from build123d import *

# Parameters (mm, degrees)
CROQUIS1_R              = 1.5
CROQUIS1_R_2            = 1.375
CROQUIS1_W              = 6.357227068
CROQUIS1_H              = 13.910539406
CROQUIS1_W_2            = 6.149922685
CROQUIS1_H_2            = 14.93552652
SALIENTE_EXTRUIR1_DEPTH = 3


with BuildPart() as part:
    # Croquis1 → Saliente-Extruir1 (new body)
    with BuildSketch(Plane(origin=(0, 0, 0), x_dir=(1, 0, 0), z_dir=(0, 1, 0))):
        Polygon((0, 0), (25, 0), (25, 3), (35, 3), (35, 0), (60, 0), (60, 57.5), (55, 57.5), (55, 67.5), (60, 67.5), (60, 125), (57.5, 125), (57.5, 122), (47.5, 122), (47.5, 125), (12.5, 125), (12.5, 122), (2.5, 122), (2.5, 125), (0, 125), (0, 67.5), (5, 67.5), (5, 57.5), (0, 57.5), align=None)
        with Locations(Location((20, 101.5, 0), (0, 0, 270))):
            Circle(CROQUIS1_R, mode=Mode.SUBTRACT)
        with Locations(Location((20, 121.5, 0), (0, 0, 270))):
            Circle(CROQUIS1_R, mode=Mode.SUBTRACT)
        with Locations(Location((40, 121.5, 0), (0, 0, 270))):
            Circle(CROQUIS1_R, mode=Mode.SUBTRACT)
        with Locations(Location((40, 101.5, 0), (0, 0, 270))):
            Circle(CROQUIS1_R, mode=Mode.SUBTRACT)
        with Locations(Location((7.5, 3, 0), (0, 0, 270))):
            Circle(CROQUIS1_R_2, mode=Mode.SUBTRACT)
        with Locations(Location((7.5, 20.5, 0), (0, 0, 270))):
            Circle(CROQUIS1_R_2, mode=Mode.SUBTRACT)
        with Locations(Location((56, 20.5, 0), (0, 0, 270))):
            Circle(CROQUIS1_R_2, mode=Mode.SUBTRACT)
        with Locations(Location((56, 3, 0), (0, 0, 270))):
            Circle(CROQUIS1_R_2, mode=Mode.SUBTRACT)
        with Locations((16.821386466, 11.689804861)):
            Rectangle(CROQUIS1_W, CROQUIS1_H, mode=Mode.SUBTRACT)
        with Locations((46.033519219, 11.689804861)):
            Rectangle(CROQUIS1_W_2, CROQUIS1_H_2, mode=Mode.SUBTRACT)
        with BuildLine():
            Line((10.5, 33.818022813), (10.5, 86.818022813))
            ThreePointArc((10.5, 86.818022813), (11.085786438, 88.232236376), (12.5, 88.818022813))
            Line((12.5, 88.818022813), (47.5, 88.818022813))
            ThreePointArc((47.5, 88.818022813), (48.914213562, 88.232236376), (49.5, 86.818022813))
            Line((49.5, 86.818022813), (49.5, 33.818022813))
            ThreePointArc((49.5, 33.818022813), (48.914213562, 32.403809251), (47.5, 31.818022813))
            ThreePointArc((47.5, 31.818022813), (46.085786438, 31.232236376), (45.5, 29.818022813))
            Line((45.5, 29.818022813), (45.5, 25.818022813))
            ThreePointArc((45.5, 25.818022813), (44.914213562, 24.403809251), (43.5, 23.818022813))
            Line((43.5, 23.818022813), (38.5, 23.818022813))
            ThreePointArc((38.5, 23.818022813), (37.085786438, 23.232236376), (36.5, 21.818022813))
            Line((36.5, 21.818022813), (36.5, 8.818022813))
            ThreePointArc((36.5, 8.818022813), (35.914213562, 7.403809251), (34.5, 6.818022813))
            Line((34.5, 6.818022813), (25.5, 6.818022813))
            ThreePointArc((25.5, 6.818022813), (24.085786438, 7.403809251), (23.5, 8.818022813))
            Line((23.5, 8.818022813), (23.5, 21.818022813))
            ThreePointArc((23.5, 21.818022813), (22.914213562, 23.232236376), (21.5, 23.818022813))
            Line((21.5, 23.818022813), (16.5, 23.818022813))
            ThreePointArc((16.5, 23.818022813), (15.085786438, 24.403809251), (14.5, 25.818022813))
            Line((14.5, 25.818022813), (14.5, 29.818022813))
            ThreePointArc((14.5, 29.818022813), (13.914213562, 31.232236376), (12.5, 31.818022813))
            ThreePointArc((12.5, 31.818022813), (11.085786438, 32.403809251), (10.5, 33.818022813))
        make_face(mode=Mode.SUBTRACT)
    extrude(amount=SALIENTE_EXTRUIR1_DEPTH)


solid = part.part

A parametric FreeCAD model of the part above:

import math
import FreeCAD as App
import Part
import Sketcher
from FreeCAD import Vector
Q = App.Units.Quantity


def add_polygon(sketch, points):
    """Adds a closed chain of lines whose ends are joined by coincident constraints."""
    first, n = sketch.GeometryCount, len(points)
    for a, b in zip(points, points[1:] + points[:1]):
        sketch.addGeometry(Part.LineSegment(App.Vector(*a, 0), App.Vector(*b, 0)), False)
    for i in range(n):
        sketch.addConstraint(Sketcher.Constraint("Coincident", first + i, 2, first + (i + 1) % n, 1))

doc = App.newDocument("Part")
params = doc.addObject("Spreadsheet::Sheet", "Params")
for row, (alias, value) in enumerate([
    ("sketch1_diameter", "3 mm"),
    ("sketch1_radius", "2 mm"),
    ("sketch1_diameter2", "2.75 mm"),
    ("sketch1_width", "25 mm"),
    ("sketch1_width2", "10 mm"),
    ("pad1_length", "3 mm"),
], start=1):
    params.set(f"A{row}", alias)
    params.set(f"B{row}", "=" + value)
    params.setAlias(f"B{row}", alias)

body = doc.addObject("PartDesign::Body", "Body")

# Sketch on XZ plane
sketch1 = doc.addObject("Sketcher::SketchObject", "Sketch")
body.addObject(sketch1)
sketch1.AttachmentSupport = (doc.XZ_Plane, [""])
sketch1.MapMode = "FlatFace"
add_polygon(sketch1, [(0, 0), (25, 0), (25, -3), (35, -3), (35, 0), (60, 0), (60, -57.5), (55, -57.5), (55, -67.5), (60, -67.5), (60, -125), (57.5, -125), (57.5, -122), (47.5, -122), (47.5, -125), (12.5, -125), (12.5, -122), (2.5, -122), (2.5, -125), (0, -125), (0, -67.5), (5, -67.5), (5, -57.5), (0, -57.5)])  # lines 0-23
sketch1.addGeometry(Part.Circle(Vector(7.5, -3, 0), Vector(0, 0, 1), 1.4), False)  # 24
add_polygon(sketch1, [(20, -4.7), (13.6, -4.7), (13.6, -18.6), (20, -18.6)])  # lines 25-28
sketch1.addGeometry(Part.Circle(Vector(7.5, -20.5, 0), Vector(0, 0, 1), 1.4), False)  # 29
sketch1.addGeometry(Part.ArcOfCircle(Part.Circle(Vector(12.5, -33.8, 0), Vector(0, 0, 1), 2), math.radians(90), math.radians(180)), False)  # 30
sketch1.addGeometry(Part.LineSegment(Vector(10.5, -33.8, 0), Vector(10.5, -86.8, 0)), False)  # 31
sketch1.addGeometry(Part.ArcOfCircle(Part.Circle(Vector(12.5, -86.8, 0), Vector(0, 0, 1), 2), math.radians(180), math.radians(270)), False)  # 32
sketch1.addGeometry(Part.LineSegment(Vector(12.5, -88.8, 0), Vector(47.5, -88.8, 0)), False)  # 33
sketch1.addGeometry(Part.ArcOfCircle(Part.Circle(Vector(47.5, -86.8, 0), Vector(0, 0, 1), 2), math.radians(-90), math.radians(0)), False)  # 34
sketch1.addGeometry(Part.LineSegment(Vector(49.5, -86.8, 0), Vector(49.5, -33.8, 0)), False)  # 35
sketch1.addGeometry(Part.ArcOfCircle(Part.Circle(Vector(47.5, -33.8, 0), Vector(0, 0, 1), 2), math.radians(0), math.radians(90)), False)  # 36
sketch1.addGeometry(Part.ArcOfCircle(Part.Circle(Vector(47.5, -29.8, 0), Vector(0, 0, 1), 2), math.radians(180), math.radians(270)), False)  # 37
sketch1.addGeometry(Part.LineSegment(Vector(45.5, -29.8, 0), Vector(45.5, -25.8, 0)), False)  # 38
sketch1.addGeometry(Part.ArcOfCircle(Part.Circle(Vector(43.5, -25.8, 0), Vector(0, 0, 1), 2), math.radians(0), math.radians(90)), False)  # 39
sketch1.addGeometry(Part.LineSegment(Vector(43.5, -23.8, 0), Vector(38.5, -23.8, 0)), False)  # 40
sketch1.addGeometry(Part.ArcOfCircle(Part.Circle(Vector(38.5, -21.8, 0), Vector(0, 0, 1), 2), math.radians(180), math.radians(270)), False)  # 41
sketch1.addGeometry(Part.LineSegment(Vector(36.5, -21.8, 0), Vector(36.5, -8.8, 0)), False)  # 42
sketch1.addGeometry(Part.ArcOfCircle(Part.Circle(Vector(34.5, -8.8, 0), Vector(0, 0, 1), 2), math.radians(0), math.radians(90)), False)  # 43
sketch1.addGeometry(Part.LineSegment(Vector(34.5, -6.8, 0), Vector(25.5, -6.8, 0)), False)  # 44
sketch1.addGeometry(Part.ArcOfCircle(Part.Circle(Vector(25.5, -8.8, 0), Vector(0, 0, 1), 2), math.radians(90), math.radians(180)), False)  # 45
sketch1.addGeometry(Part.LineSegment(Vector(23.5, -8.8, 0), Vector(23.5, -21.8, 0)), False)  # 46
sketch1.addGeometry(Part.ArcOfCircle(Part.Circle(Vector(21.5, -21.8, 0), Vector(0, 0, 1), 2), math.radians(-90), math.radians(0)), False)  # 47
sketch1.addGeometry(Part.LineSegment(Vector(21.5, -23.8, 0), Vector(16.5, -23.8, 0)), False)  # 48
sketch1.addGeometry(Part.ArcOfCircle(Part.Circle(Vector(16.5, -25.8, 0), Vector(0, 0, 1), 2), math.radians(90), math.radians(180)), False)  # 49
sketch1.addGeometry(Part.LineSegment(Vector(14.5, -25.8, 0), Vector(14.5, -29.8, 0)), False)  # 50
sketch1.addGeometry(Part.ArcOfCircle(Part.Circle(Vector(12.5, -29.8, 0), Vector(0, 0, 1), 2), math.radians(-90), math.radians(0)), False)  # 51
add_polygon(sketch1, [(49.1, -4.2), (43, -4.2), (43, -19.2), (49.1, -19.2)])  # lines 52-55
sketch1.addGeometry(Part.Circle(Vector(56, -3, 0), Vector(0, 0, 1), 1.4), False)  # 56
sketch1.addGeometry(Part.Circle(Vector(56, -20.5, 0), Vector(0, 0, 1), 1.4), False)  # 57
sketch1.addGeometry(Part.Circle(Vector(20, -101.5, 0), Vector(0, 0, 1), 1.5), False)  # 58
sketch1.addGeometry(Part.Circle(Vector(20, -121.5, 0), Vector(0, 0, 1), 1.5), False)  # 59
sketch1.addGeometry(Part.Circle(Vector(40, -101.5, 0), Vector(0, 0, 1), 1.5), False)  # 60
sketch1.addGeometry(Part.Circle(Vector(40, -121.5, 0), Vector(0, 0, 1), 1.5), False)  # 61
sketch1.addConstraint([
    Sketcher.Constraint("Tangent", 30, 2, 31, 1),
    Sketcher.Constraint("Tangent", 31, 2, 32, 1),
    Sketcher.Constraint("Tangent", 32, 2, 33, 1),
    Sketcher.Constraint("Tangent", 33, 2, 34, 1),
    Sketcher.Constraint("Tangent", 34, 2, 35, 1),
    Sketcher.Constraint("Tangent", 35, 2, 36, 1),
    Sketcher.Constraint("Tangent", 36, 2, 37, 2),
    Sketcher.Constraint("Tangent", 37, 1, 38, 1),
    Sketcher.Constraint("Tangent", 38, 2, 39, 1),
    Sketcher.Constraint("Tangent", 39, 2, 40, 1),
    Sketcher.Constraint("Tangent", 40, 2, 41, 2),
    Sketcher.Constraint("Tangent", 41, 1, 42, 1),
    Sketcher.Constraint("Tangent", 42, 2, 43, 1),
    Sketcher.Constraint("Tangent", 43, 2, 44, 1),
    Sketcher.Constraint("Tangent", 44, 2, 45, 1),
    Sketcher.Constraint("Tangent", 45, 2, 46, 1),
    Sketcher.Constraint("Tangent", 46, 2, 47, 2),
    Sketcher.Constraint("Tangent", 47, 1, 48, 1),
    Sketcher.Constraint("Tangent", 48, 2, 49, 1),
    Sketcher.Constraint("Tangent", 49, 2, 50, 1),
    Sketcher.Constraint("Tangent", 50, 2, 51, 2),
    Sketcher.Constraint("Tangent", 51, 1, 30, 1),
    Sketcher.Constraint("Horizontal", 0),
    Sketcher.Constraint("Vertical", 1),
    Sketcher.Constraint("Horizontal", 2),
    Sketcher.Constraint("Vertical", 3),
    Sketcher.Constraint("Horizontal", 4),
    Sketcher.Constraint("Vertical", 5),
    Sketcher.Constraint("Horizontal", 6),
    Sketcher.Constraint("Vertical", 7),
    Sketcher.Constraint("Horizontal", 8),
    Sketcher.Constraint("Vertical", 9),
    Sketcher.Constraint("Horizontal", 10),
    Sketcher.Constraint("Vertical", 11),
    Sketcher.Constraint("Horizontal", 12),
    Sketcher.Constraint("Vertical", 13),
    Sketcher.Constraint("Horizontal", 14),
    Sketcher.Constraint("Vertical", 15),
    Sketcher.Constraint("Horizontal", 16),
    Sketcher.Constraint("Vertical", 17),
    Sketcher.Constraint("Horizontal", 18),
    Sketcher.Constraint("Vertical", 19),
    Sketcher.Constraint("Horizontal", 20),
    Sketcher.Constraint("Vertical", 21),
    Sketcher.Constraint("Horizontal", 22),
    Sketcher.Constraint("Vertical", 23),
    Sketcher.Constraint("Horizontal", 25),
    Sketcher.Constraint("Vertical", 26),
    Sketcher.Constraint("Horizontal", 27),
    Sketcher.Constraint("Vertical", 28),
    Sketcher.Constraint("Vertical", 31),
    Sketcher.Constraint("Horizontal", 33),
    Sketcher.Constraint("Vertical", 35),
    Sketcher.Constraint("Vertical", 38),
    Sketcher.Constraint("Horizontal", 40),
    Sketcher.Constraint("Vertical", 42),
    Sketcher.Constraint("Horizontal", 44),
    Sketcher.Constraint("Vertical", 46),
    Sketcher.Constraint("Horizontal", 48),
    Sketcher.Constraint("Vertical", 50),
    Sketcher.Constraint("Horizontal", 52),
    Sketcher.Constraint("Vertical", 53),
    Sketcher.Constraint("Horizontal", 54),
    Sketcher.Constraint("Vertical", 55),
    Sketcher.Constraint("Coincident", 23, 2, -1, 1),
    Sketcher.Constraint("Equal", 24, 29),
    Sketcher.Constraint("Equal", 30, 32),
    Sketcher.Constraint("Equal", 32, 34),
    Sketcher.Constraint("Equal", 34, 36),
    Sketcher.Constraint("Equal", 36, 37),
    Sketcher.Constraint("Equal", 37, 39),
    Sketcher.Constraint("Equal", 39, 41),
    Sketcher.Constraint("Equal", 41, 43),
    Sketcher.Constraint("Equal", 43, 45),
    Sketcher.Constraint("Equal", 45, 47),
    Sketcher.Constraint("Equal", 47, 49),
    Sketcher.Constraint("Equal", 49, 51),
    Sketcher.Constraint("Equal", 29, 56),
    Sketcher.Constraint("Equal", 56, 57),
    Sketcher.Constraint("Equal", 58, 59),
    Sketcher.Constraint("Equal", 59, 60),
    Sketcher.Constraint("Equal", 60, 61),
    Sketcher.Constraint("PointOnObject", 3, 2, -1),
    Sketcher.Constraint("PointOnObject", 18, 2, -2),
    Sketcher.Constraint("Horizontal", 30, 3, 36, 3),
    Sketcher.Constraint("Horizontal", 41, 3, 47, 3),
    Sketcher.Constraint("Horizontal", 24, 3, 56, 3),
    Sketcher.Constraint("Horizontal", 29, 3, 57, 3),
    Sketcher.Constraint("Horizontal", 58, 3, 60, 3),
    Sketcher.Constraint("Horizontal", 59, 3, 61, 3),
    Sketcher.Constraint("Horizontal", 56, 3, 1, 2),
    Sketcher.Constraint("Horizontal", 10, 2, 13, 2),
    Sketcher.Constraint("Horizontal", 12, 2, 15, 2),
    Sketcher.Constraint("Horizontal", 14, 2, 17, 2),
    Sketcher.Constraint("Horizontal", 8, 2, 19, 2),
    Sketcher.Constraint("Horizontal", 6, 2, 21, 2),
    Sketcher.Constraint("Vertical", 24, 3, 29, 3),
    Sketcher.Constraint("Vertical", 36, 3, 37, 3),
    Sketcher.Constraint("Vertical", 32, 3, 51, 3),
    Sketcher.Constraint("Vertical", 56, 3, 57, 3),
    Sketcher.Constraint("Vertical", 58, 3, 59, 3),
    Sketcher.Constraint("Vertical", 60, 3, 61, 3),
    Sketcher.Constraint("Vertical", 5, 2, 8, 2),
    Sketcher.Constraint("Vertical", 37, 3, 12, 2),
    Sketcher.Constraint("Vertical", 51, 3, 14, 2),
    Sketcher.Constraint("Vertical", 59, 3, 27, 2),
    Sketcher.Constraint("Equal", 0, 4),
    Sketcher.Constraint("Equal", 2, 12),
    Sketcher.Constraint("Equal", 12, 16),
    Sketcher.Constraint("Equal", 10, 18),
    Sketcher.Constraint("Equal", 8, 20),
    Sketcher.Constraint("Equal", 22, 40),
    Sketcher.Constraint("Equal", 40, 48),
    Sketcher.Constraint("Equal", 16, 7),
    Sketcher.Constraint("Equal", 5, 9),
    Sketcher.Constraint("Equal", 3, 11),
    Sketcher.Constraint("Diameter", 58, Q("3 mm")),
    Sketcher.Constraint("Radius", 30, Q("2 mm")),
    Sketcher.Constraint("Diameter", 24, Q("2.75 mm")),
    Sketcher.Constraint("DistanceX", 0, 1, 0, 2, Q("25 mm")),
    Sketcher.Constraint("DistanceX", 2, 1, 2, 2, Q("10 mm")),
    Sketcher.Constraint("DistanceX", 6, 2, 6, 1, Q("5 mm")),
    Sketcher.Constraint("DistanceX", 14, 2, 14, 1, Q("35 mm")),
    Sketcher.Constraint("DistanceY", 1, 2, 1, 1, Q("3 mm")),
    Sketcher.Constraint("DistanceY", 31, 2, 31, 1, Q("53 mm")),
    Sketcher.Constraint("DistanceY", 38, 1, 38, 2, Q("4 mm")),
    Sketcher.Constraint("DistanceY", 42, 1, 42, 2, Q("13 mm")),
    Sketcher.Constraint("DistanceY", 5, 2, 5, 1, Q("57.5 mm")),
    Sketcher.Constraint("DistanceX", -1, 1, 56, 3, Q("56 mm")),
    Sketcher.Constraint("DistanceX", -1, 1, 58, 3, Q("20 mm")),
    Sketcher.Constraint("DistanceX", -1, 1, 60, 3, Q("40 mm")),
    Sketcher.Constraint("DistanceX", -1, 1, 24, 3, Q("7.5 mm")),
    Sketcher.Constraint("DistanceY", 29, 3, -1, 1, Q("20.5 mm")),
    Sketcher.Constraint("DistanceY", 58, 3, -1, 1, Q("101.5 mm")),
    Sketcher.Constraint("DistanceY", 59, 3, -1, 1, Q("121.5 mm")),
    Sketcher.Constraint("DistanceY", 26, 2, 26, 1, Q("13.910539 mm")),
    Sketcher.Constraint("DistanceX", 25, 2, 25, 1, Q("6.357227 mm")),
    Sketcher.Constraint("DistanceX", 52, 2, 52, 1, Q("6.149923 mm")),
    Sketcher.Constraint("DistanceY", 53, 2, 53, 1, Q("14.935527 mm")),
    Sketcher.Constraint("DistanceY", 52, 2, -1, 1, Q("4.222042 mm")),
    Sketcher.Constraint("DistanceX", -1, 1, 54, 2, Q("49.108481 mm")),
    Sketcher.Constraint("DistanceY", 30, 3, -1, 1, Q("33.818023 mm")),
    Sketcher.Constraint("DistanceY", 25, 2, -1, 1, Q("4.734535 mm")),
])
sketch1.setExpression("Constraints[148]", "Params.sketch1_diameter")
sketch1.setExpression("Constraints[149]", "Params.sketch1_radius")
sketch1.setExpression("Constraints[150]", "Params.sketch1_diameter2")
sketch1.setExpression("Constraints[151]", "Params.sketch1_width")
sketch1.setExpression("Constraints[152]", "Params.sketch1_width2")
pad1 = doc.addObject("PartDesign::Pad", "Pad")
body.addObject(pad1)
pad1.Profile = sketch1
pad1.setExpression("Length", "Params.pad1_length")
pad1.Reversed = True

doc.recompute()
